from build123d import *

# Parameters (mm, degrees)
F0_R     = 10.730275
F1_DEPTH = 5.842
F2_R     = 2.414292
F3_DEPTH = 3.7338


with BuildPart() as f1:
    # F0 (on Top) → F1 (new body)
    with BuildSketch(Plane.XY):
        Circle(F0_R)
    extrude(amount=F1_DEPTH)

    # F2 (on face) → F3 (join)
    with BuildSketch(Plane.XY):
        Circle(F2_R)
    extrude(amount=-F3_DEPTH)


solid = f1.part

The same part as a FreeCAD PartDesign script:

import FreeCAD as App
import Part
import Sketcher
Q = App.Units.Quantity

doc = App.newDocument("Part")
body = doc.addObject("PartDesign::Body", "Body")

# Sketch on XY plane
sketch1 = doc.addObject("Sketcher::SketchObject", "Sketch")
body.addObject(sketch1)
sketch1.AttachmentSupport = (doc.XY_Plane, [""])
sketch1.MapMode = "FlatFace"
sketch1.addGeometry(Part.Circle(App.Vector(0, 0, 0), App.Vector(0, 0, 1), 11), False)
sketch1.addConstraint([
    Sketcher.Constraint("Coincident", 0, 3, -1, 1),
    Sketcher.Constraint("Diameter", 0, Q("21.46055 mm")),
])
pad1 = doc.addObject("PartDesign::Pad", "Pad")
body.addObject(pad1)
pad1.Profile = sketch1
pad1.Length = Q("0.23 in")

# Sketch on XY plane
sketch2 = doc.addObject("Sketcher::SketchObject", "Sketch001")
body.addObject(sketch2)
sketch2.AttachmentSupport = (doc.XY_Plane, [""])
sketch2.MapMode = "FlatFace"
sketch2.addGeometry(Part.Circle(App.Vector(0, 0, 0), App.Vector(0, 0, 1), 2.4), False)
sketch2.addConstraint([
    Sketcher.Constraint("Coincident", 0, 3, -1, 1),
    Sketcher.Constraint("Diameter", 0, Q("4.828584 mm")),
])
pad2 = doc.addObject("PartDesign::Pad", "Pad001")
body.addObject(pad2)
pad2.Profile = sketch2
pad2.Length = Q("0.147 in")
pad2.Reversed = True

doc.recompute()
